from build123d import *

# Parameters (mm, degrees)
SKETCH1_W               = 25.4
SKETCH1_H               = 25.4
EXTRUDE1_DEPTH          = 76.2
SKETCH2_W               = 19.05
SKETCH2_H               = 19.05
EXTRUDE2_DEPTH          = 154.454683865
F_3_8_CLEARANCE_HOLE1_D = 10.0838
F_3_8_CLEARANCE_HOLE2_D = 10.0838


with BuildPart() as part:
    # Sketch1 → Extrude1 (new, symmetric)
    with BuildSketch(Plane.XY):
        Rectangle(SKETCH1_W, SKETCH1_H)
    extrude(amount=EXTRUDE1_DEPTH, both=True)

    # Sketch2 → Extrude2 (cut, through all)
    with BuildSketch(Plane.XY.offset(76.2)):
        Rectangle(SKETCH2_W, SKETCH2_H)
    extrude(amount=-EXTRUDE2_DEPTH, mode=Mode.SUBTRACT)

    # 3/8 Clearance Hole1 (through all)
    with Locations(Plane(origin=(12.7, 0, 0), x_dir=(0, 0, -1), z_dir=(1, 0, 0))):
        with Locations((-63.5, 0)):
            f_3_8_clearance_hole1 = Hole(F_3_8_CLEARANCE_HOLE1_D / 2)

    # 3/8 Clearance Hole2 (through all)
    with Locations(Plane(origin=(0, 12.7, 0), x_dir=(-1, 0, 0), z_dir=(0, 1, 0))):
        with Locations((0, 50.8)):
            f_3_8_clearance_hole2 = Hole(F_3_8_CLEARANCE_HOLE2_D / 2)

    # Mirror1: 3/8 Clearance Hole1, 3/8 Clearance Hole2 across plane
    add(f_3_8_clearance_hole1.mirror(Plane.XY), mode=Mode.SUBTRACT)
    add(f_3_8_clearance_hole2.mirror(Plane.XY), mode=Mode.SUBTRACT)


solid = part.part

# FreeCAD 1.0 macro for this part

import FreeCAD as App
import Part
import Sketcher
Q = App.Units.Quantity

doc = App.newDocument("Part")
params = doc.addObject("Spreadsheet::Sheet", "Params")
for row, (alias, value) in enumerate([
    ("sketch1_width", "1 in"),
    ("pad1_length", "6 in"),
    ("sketch2_width", "0.75 in"),
    ("sketch3_diameter", "0.397 in"),
    ("hole_diameter", "0.397 in"),
    ("sketch4_diameter", "0.397 in"),
    ("hole2_diameter", "0.397 in"),
], start=1):
    params.set(f"A{row}", alias)
    params.set(f"B{row}", "=" + value)
    params.setAlias(f"B{row}", alias)

body = doc.addObject("PartDesign::Body", "Body")

# Sketch on XY plane
sketch1 = body.newObject("Sketcher::SketchObject", "Sketch")
sketch1.AttachmentSupport = (doc.getObject("XY_Plane"), [""])
sketch1.MapMode = "FlatFace"
sketch1.addGeometry([
    Part.LineSegment(App.Vector(-12.7, 12.7, 0), App.Vector(-12.7, -12.7, 0)),
    Part.LineSegment(App.Vector(-12.7, -12.7, 0), App.Vector(12.7, -12.7, 0)),
    Part.LineSegment(App.Vector(12.7, -12.7, 0), App.Vector(12.7, 12.7, 0)),
    Part.LineSegment(App.Vector(12.7, 12.7, 0), App.Vector(-12.7, 12.7, 0)),
], False)
sketch1.addConstraint([
    Sketcher.Constraint("Coincident", 0, 2, 1, 1),
    Sketcher.Constraint("Coincident", 1, 2, 2, 1),
    Sketcher.Constraint("Coincident", 2, 2, 3, 1),
    Sketcher.Constraint("Coincident", 3, 2, 0, 1),
    Sketcher.Constraint("Vertical", 0),
    Sketcher.Constraint("Horizontal", 1),
    Sketcher.Constraint("Vertical", 2),
    Sketcher.Constraint("Horizontal", 3),
    Sketcher.Constraint("Symmetric", 0, 2, 2, 2, -1, 1),
    Sketcher.Constraint("Equal", 3, 0),
    Sketcher.Constraint("DistanceX", 1, 1, 1, 2, Q("1 in")),
])
sketch1.setExpression("Constraints[10]", "Params.sketch1_width")
pad1 = body.newObject("PartDesign::Pad", "Pad")
pad1.Profile = sketch1
pad1.setExpression("Length", "Params.pad1_length")
pad1.Midplane = True

# Sketch on XY plane
sketch2 = body.newObject("Sketcher::SketchObject", "Sketch001")
sketch2.AttachmentSupport = (doc.getObject("XY_Plane"), [""])
sketch2.MapMode = "FlatFace"
sketch2.AttachmentOffset = App.Placement(App.Vector(0, 0, 3 * 25.4), App.Rotation())
sketch2.addGeometry([
    Part.LineSegment(App.Vector(-9.525, 9.525, 0), App.Vector(-9.525, -9.525, 0)),
    Part.LineSegment(App.Vector(-9.525, -9.525, 0), App.Vector(9.525, -9.525, 0)),
    Part.LineSegment(App.Vector(9.525, -9.525, 0), App.Vector(9.525, 9.525, 0)),
    Part.LineSegment(App.Vector(9.525, 9.525, 0), App.Vector(-9.525, 9.525, 0)),
], False)
sketch2.addConstraint([
    Sketcher.Constraint("Coincident", 0, 2, 1, 1),
    Sketcher.Constraint("Coincident", 1, 2, 2, 1),
    Sketcher.Constraint("Coincident", 2, 2, 3, 1),
    Sketcher.Constraint("Coincident", 3, 2, 0, 1),
    Sketcher.Constraint("Vertical", 0),
    Sketcher.Constraint("Horizontal", 1),
    Sketcher.Constraint("Vertical", 2),
    Sketcher.Constraint("Horizontal", 3),
    Sketcher.Constraint("Symmetric", 0, 2, 2, 2, -1, 1),
    Sketcher.Constraint("Equal", 3, 0),
    Sketcher.Constraint("DistanceX", 1, 1, 1, 2, Q("0.75 in")),
])
sketch2.setExpression("Constraints[10]", "Params.sketch2_width")
pocket1 = body.newObject("PartDesign::Pocket", "Pocket")
pocket1.Profile = sketch2
pocket1.Type = "ThroughAll"

# Sketch on YZ plane
sketch3 = body.newObject("Sketcher::SketchObject", "Sketch002")
sketch3.AttachmentSupport = (doc.getObject("YZ_Plane"), [""])
sketch3.MapMode = "FlatFace"
sketch3.AttachmentOffset = App.Placement(App.Vector(0, 0, 0.5 * 25.4), App.Rotation())
sketch3.addGeometry(Part.Circle(App.Vector(0, 63.5, 0), App.Vector(0, 0, 1), 5.0419), False)
sketch3.addConstraint([
    Sketcher.Constraint("PointOnObject", 0, 3, -2),
    Sketcher.Constraint("Diameter", 0, Q("0.397 in")),
    Sketcher.Constraint("DistanceY", -1, 1, 0, 3, Q("2.5 in")),
])
sketch3.setExpression("Constraints[1]", "Params.sketch3_diameter")
doc.recompute()
hole = body.newObject("PartDesign::Hole", "Hole")
hole.Profile = sketch3
hole.ThreadType = "None"
hole.setExpression("Diameter", "Params.hole_diameter")
hole.DepthType = "ThroughAll"

# Sketch on XZ plane
sketch4 = body.newObject("Sketcher::SketchObject", "Sketch003")
sketch4.AttachmentSupport = (doc.getObject("XZ_Plane"), [""])
sketch4.MapMode = "FlatFace"
sketch4.AttachmentOffset = App.Placement(App.Vector(0, 0, -0.5 * 25.4), App.Rotation())
sketch4.addGeometry(Part.Circle(App.Vector(0, 50.8, 0), App.Vector(0, 0, 1), 5.0419), False)
sketch4.addConstraint([
    Sketcher.Constraint("PointOnObject", 0, 3, -2),
    Sketcher.Constraint("Diameter", 0, Q("0.397 in")),
    Sketcher.Constraint("DistanceY", -1, 1, 0, 3, Q("2 in")),
])
sketch4.setExpression("Constraints[1]", "Params.sketch4_diameter")
doc.recompute()
hole2 = body.newObject("PartDesign::Hole", "Hole001")
hole2.Profile = sketch4
hole2.ThreadType = "None"
hole2.setExpression("Diameter", "Params.hole2_diameter")
hole2.DepthType = "ThroughAll"
hole2.Reversed = True
doc.recompute()

mirrored = body.newObject("PartDesign::Mirrored", "Mirrored")
mirrored.Originals = [hole, hole2]
mirrored.MirrorPlane = (doc.getObject("XY_Plane"), [""])
body.Tip = mirrored

doc.recompute()
